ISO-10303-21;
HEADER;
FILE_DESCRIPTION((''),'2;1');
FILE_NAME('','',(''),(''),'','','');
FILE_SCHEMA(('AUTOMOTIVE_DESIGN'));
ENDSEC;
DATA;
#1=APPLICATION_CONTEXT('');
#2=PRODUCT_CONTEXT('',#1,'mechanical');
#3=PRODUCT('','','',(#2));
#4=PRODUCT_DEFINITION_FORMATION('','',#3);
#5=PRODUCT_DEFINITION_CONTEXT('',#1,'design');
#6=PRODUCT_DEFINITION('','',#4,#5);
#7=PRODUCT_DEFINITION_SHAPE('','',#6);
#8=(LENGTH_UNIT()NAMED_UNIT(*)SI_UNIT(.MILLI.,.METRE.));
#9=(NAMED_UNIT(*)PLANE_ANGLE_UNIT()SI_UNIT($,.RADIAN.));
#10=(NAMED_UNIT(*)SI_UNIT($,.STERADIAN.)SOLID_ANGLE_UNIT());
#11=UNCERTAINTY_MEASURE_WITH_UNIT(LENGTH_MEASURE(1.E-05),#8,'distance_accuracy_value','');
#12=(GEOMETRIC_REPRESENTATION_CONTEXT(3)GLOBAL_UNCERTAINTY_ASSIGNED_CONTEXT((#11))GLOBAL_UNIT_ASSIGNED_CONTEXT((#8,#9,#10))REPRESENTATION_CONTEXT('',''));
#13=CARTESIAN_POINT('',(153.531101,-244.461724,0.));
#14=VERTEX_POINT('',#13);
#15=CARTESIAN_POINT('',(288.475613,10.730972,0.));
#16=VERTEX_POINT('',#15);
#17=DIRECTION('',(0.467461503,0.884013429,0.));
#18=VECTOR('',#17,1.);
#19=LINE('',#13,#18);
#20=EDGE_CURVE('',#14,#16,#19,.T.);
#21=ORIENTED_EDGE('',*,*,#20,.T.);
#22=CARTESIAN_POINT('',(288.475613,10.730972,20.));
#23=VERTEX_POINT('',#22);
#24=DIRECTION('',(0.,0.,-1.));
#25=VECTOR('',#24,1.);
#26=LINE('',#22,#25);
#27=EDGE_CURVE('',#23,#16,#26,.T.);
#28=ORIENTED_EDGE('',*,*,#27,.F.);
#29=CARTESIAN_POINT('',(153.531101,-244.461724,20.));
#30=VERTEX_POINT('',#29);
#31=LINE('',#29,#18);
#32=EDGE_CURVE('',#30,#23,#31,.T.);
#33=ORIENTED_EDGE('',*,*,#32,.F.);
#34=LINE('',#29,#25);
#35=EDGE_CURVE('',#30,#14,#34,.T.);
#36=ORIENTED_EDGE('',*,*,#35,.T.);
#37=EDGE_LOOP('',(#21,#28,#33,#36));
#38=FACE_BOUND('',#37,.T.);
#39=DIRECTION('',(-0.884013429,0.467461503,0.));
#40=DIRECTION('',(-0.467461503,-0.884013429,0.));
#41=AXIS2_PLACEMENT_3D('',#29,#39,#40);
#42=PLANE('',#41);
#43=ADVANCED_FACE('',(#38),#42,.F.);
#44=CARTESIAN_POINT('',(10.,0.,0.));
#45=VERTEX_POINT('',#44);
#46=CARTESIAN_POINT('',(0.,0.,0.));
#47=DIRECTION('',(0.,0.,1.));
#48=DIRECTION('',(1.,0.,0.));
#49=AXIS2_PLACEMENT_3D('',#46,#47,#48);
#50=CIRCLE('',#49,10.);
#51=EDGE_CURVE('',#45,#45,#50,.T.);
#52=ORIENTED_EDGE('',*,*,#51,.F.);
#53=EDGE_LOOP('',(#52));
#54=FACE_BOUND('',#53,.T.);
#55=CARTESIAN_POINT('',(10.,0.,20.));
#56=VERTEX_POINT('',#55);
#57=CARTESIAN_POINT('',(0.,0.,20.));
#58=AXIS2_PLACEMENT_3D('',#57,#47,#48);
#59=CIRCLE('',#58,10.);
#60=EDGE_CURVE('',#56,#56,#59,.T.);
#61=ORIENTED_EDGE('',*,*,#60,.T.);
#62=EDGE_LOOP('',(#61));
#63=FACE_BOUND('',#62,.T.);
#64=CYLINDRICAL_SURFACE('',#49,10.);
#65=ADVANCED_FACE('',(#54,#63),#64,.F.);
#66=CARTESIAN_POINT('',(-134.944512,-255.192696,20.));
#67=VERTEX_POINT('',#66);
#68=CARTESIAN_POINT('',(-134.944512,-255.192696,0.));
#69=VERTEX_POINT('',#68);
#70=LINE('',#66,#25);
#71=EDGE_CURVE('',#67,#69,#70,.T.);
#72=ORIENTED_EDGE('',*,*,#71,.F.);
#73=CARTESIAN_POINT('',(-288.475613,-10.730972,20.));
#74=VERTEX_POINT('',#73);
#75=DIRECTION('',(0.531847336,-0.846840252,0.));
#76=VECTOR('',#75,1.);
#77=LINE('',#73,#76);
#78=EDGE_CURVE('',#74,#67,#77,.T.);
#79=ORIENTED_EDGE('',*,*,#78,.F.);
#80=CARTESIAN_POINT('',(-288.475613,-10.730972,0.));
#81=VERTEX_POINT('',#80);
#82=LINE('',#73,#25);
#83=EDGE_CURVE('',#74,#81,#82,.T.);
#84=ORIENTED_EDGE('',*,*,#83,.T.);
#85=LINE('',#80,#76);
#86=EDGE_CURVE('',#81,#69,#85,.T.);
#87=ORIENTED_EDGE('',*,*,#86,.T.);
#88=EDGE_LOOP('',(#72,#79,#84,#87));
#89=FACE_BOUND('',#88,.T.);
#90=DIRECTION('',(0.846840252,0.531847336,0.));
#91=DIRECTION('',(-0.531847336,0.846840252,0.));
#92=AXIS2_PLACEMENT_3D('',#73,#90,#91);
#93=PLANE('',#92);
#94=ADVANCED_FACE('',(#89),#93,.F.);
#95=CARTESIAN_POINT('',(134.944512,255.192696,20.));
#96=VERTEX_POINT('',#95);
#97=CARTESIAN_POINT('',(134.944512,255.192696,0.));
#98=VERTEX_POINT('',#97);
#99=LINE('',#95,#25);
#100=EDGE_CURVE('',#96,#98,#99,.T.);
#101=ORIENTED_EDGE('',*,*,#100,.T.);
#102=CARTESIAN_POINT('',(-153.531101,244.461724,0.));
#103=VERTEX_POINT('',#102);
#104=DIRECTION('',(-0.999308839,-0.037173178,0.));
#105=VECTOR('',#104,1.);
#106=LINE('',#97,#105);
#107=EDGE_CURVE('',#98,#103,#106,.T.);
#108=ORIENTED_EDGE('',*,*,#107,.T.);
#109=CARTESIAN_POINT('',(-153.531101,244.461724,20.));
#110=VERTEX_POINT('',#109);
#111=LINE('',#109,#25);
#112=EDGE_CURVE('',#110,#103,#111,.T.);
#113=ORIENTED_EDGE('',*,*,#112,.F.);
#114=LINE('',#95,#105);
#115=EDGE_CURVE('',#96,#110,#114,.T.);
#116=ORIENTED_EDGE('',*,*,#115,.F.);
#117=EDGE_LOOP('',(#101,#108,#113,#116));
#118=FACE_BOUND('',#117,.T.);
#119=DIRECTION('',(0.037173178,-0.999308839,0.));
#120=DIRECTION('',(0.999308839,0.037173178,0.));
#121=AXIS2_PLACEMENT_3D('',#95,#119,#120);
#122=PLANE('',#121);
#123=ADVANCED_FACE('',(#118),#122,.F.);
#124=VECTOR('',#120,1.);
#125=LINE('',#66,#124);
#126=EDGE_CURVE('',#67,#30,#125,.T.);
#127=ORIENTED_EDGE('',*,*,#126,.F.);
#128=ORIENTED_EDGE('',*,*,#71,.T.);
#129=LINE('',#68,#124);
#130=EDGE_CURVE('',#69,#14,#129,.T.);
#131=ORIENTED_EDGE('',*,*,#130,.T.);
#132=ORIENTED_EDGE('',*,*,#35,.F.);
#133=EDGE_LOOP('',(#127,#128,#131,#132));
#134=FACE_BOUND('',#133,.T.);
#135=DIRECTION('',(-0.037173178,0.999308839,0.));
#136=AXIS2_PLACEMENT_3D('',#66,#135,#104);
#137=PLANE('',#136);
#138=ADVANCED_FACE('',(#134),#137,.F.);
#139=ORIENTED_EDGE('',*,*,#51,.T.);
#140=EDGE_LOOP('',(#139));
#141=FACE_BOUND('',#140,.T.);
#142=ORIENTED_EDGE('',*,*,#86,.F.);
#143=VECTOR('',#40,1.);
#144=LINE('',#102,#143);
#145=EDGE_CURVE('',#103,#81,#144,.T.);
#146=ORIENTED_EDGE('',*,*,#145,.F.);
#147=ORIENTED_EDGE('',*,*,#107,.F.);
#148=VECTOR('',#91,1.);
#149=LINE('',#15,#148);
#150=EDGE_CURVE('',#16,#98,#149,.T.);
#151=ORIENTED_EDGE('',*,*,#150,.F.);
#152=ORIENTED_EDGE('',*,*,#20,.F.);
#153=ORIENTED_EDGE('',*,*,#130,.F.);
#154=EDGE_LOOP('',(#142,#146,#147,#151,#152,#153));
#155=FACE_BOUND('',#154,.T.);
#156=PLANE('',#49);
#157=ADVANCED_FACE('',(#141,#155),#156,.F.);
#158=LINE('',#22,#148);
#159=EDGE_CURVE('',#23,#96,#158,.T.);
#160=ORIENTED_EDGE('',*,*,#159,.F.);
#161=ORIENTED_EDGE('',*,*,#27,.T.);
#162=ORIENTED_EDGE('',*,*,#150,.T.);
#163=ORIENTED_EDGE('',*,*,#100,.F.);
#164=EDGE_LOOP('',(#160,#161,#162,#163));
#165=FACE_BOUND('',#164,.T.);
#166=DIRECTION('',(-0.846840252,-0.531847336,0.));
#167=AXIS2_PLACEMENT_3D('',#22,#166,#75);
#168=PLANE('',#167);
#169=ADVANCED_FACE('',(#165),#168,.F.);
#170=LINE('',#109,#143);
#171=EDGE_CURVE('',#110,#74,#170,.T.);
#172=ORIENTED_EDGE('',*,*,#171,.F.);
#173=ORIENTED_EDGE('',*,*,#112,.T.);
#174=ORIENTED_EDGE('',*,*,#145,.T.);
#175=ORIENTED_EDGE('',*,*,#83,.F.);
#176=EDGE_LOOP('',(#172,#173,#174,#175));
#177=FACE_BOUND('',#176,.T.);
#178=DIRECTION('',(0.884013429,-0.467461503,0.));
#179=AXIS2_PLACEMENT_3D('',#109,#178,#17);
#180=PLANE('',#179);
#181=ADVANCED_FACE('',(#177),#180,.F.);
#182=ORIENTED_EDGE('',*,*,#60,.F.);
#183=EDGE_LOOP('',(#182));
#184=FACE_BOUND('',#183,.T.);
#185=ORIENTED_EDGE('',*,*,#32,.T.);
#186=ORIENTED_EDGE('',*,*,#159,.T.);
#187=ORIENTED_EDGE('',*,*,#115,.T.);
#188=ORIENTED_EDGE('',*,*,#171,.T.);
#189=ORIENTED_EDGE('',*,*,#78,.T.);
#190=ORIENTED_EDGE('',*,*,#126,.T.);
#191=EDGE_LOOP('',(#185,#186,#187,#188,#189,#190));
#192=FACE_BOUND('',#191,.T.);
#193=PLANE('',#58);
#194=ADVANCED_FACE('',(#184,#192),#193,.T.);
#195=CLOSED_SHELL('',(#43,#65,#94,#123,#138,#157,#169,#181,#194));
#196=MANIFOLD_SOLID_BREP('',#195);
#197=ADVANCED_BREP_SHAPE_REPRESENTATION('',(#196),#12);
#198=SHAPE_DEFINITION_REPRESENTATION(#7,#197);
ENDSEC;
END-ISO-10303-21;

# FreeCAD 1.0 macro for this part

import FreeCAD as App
import Part
import Sketcher
from FreeCAD import Vector

doc = App.newDocument("Part")
body = doc.addObject("PartDesign::Body", "Body")

# Sketch on XY plane
sketch1 = body.newObject("Sketcher::SketchObject", "Sketch")
sketch1.AttachmentSupport = (doc.getObject("XY_Plane"), [""])
sketch1.MapMode = "FlatFace"
sketch1.addGeometry([
    Part.LineSegment(Vector(153.531101, -244.461724, 0), Vector(288.475613, 10.730972, 0)),  # 0
    Part.LineSegment(Vector(288.475613, 10.730972, 0), Vector(134.944512, 255.192696, 0)),  # 1
    Part.LineSegment(Vector(134.944512, 255.192696, 0), Vector(-153.531101, 244.461724, 0)),  # 2
    Part.LineSegment(Vector(-153.531101, 244.461724, 0), Vector(-288.475613, -10.730972, 0)),  # 3
    Part.LineSegment(Vector(-288.475613, -10.730972, 0), Vector(-134.944512, -255.192696, 0)),  # 4
    Part.LineSegment(Vector(-134.944512, -255.192696, 0), Vector(153.531101, -244.461724, 0)),  # 5
], False)
sketch1.addConstraint([
    Sketcher.Constraint("Coincident", 0, 2, 1, 1),
    Sketcher.Constraint("Coincident", 1, 2, 2, 1),
    Sketcher.Constraint("Coincident", 2, 2, 3, 1),
    Sketcher.Constraint("Coincident", 3, 2, 4, 1),
    Sketcher.Constraint("Coincident", 4, 2, 5, 1),
    Sketcher.Constraint("Coincident", 5, 2, 0, 1),
    Sketcher.Constraint("Symmetric", 0, 2, 3, 2, -1, 1),
    Sketcher.Constraint("Symmetric", 1, 2, 4, 2, -1, 1),
    Sketcher.Constraint("Symmetric", 2, 2, 5, 2, -1, 1),
    Sketcher.Constraint("Equal", 0, 1),
    Sketcher.Constraint("Equal", 1, 2),
    Sketcher.Constraint("DistanceX", 2, 2, -1, 1, 153.531101),
    Sketcher.Constraint("DistanceX", 1, 2, 0, 2, 153.531101),
    Sketcher.Constraint("DistanceY", 0, 2, 2, 2, 233.730752),
    Sketcher.Constraint("DistanceX", 2, 2, 4, 2, 18.586589),
])
pad1 = body.newObject("PartDesign::Pad", "Pad")
pad1.Profile = sketch1
pad1.Length = 20

# Sketch on XY plane
sketch2 = body.newObject("Sketcher::SketchObject", "Sketch001")
sketch2.AttachmentSupport = (doc.getObject("XY_Plane"), [""])
sketch2.MapMode = "FlatFace"
sketch2.AttachmentOffset = App.Placement(Vector(0, 0, 20), App.Rotation())
sketch2.addGeometry(Part.Circle(Vector(0, 0, 0), Vector(0, 0, 1), 10), False)
sketch2.addConstraint([
    Sketcher.Constraint("Coincident", 0, 3, -1, 1),
    Sketcher.Constraint("Diameter", 0, 20.0),
])
pocket1 = body.newObject("PartDesign::Pocket", "Pocket")
pocket1.Profile = sketch2
pocket1.Length = 20

doc.recompute()
